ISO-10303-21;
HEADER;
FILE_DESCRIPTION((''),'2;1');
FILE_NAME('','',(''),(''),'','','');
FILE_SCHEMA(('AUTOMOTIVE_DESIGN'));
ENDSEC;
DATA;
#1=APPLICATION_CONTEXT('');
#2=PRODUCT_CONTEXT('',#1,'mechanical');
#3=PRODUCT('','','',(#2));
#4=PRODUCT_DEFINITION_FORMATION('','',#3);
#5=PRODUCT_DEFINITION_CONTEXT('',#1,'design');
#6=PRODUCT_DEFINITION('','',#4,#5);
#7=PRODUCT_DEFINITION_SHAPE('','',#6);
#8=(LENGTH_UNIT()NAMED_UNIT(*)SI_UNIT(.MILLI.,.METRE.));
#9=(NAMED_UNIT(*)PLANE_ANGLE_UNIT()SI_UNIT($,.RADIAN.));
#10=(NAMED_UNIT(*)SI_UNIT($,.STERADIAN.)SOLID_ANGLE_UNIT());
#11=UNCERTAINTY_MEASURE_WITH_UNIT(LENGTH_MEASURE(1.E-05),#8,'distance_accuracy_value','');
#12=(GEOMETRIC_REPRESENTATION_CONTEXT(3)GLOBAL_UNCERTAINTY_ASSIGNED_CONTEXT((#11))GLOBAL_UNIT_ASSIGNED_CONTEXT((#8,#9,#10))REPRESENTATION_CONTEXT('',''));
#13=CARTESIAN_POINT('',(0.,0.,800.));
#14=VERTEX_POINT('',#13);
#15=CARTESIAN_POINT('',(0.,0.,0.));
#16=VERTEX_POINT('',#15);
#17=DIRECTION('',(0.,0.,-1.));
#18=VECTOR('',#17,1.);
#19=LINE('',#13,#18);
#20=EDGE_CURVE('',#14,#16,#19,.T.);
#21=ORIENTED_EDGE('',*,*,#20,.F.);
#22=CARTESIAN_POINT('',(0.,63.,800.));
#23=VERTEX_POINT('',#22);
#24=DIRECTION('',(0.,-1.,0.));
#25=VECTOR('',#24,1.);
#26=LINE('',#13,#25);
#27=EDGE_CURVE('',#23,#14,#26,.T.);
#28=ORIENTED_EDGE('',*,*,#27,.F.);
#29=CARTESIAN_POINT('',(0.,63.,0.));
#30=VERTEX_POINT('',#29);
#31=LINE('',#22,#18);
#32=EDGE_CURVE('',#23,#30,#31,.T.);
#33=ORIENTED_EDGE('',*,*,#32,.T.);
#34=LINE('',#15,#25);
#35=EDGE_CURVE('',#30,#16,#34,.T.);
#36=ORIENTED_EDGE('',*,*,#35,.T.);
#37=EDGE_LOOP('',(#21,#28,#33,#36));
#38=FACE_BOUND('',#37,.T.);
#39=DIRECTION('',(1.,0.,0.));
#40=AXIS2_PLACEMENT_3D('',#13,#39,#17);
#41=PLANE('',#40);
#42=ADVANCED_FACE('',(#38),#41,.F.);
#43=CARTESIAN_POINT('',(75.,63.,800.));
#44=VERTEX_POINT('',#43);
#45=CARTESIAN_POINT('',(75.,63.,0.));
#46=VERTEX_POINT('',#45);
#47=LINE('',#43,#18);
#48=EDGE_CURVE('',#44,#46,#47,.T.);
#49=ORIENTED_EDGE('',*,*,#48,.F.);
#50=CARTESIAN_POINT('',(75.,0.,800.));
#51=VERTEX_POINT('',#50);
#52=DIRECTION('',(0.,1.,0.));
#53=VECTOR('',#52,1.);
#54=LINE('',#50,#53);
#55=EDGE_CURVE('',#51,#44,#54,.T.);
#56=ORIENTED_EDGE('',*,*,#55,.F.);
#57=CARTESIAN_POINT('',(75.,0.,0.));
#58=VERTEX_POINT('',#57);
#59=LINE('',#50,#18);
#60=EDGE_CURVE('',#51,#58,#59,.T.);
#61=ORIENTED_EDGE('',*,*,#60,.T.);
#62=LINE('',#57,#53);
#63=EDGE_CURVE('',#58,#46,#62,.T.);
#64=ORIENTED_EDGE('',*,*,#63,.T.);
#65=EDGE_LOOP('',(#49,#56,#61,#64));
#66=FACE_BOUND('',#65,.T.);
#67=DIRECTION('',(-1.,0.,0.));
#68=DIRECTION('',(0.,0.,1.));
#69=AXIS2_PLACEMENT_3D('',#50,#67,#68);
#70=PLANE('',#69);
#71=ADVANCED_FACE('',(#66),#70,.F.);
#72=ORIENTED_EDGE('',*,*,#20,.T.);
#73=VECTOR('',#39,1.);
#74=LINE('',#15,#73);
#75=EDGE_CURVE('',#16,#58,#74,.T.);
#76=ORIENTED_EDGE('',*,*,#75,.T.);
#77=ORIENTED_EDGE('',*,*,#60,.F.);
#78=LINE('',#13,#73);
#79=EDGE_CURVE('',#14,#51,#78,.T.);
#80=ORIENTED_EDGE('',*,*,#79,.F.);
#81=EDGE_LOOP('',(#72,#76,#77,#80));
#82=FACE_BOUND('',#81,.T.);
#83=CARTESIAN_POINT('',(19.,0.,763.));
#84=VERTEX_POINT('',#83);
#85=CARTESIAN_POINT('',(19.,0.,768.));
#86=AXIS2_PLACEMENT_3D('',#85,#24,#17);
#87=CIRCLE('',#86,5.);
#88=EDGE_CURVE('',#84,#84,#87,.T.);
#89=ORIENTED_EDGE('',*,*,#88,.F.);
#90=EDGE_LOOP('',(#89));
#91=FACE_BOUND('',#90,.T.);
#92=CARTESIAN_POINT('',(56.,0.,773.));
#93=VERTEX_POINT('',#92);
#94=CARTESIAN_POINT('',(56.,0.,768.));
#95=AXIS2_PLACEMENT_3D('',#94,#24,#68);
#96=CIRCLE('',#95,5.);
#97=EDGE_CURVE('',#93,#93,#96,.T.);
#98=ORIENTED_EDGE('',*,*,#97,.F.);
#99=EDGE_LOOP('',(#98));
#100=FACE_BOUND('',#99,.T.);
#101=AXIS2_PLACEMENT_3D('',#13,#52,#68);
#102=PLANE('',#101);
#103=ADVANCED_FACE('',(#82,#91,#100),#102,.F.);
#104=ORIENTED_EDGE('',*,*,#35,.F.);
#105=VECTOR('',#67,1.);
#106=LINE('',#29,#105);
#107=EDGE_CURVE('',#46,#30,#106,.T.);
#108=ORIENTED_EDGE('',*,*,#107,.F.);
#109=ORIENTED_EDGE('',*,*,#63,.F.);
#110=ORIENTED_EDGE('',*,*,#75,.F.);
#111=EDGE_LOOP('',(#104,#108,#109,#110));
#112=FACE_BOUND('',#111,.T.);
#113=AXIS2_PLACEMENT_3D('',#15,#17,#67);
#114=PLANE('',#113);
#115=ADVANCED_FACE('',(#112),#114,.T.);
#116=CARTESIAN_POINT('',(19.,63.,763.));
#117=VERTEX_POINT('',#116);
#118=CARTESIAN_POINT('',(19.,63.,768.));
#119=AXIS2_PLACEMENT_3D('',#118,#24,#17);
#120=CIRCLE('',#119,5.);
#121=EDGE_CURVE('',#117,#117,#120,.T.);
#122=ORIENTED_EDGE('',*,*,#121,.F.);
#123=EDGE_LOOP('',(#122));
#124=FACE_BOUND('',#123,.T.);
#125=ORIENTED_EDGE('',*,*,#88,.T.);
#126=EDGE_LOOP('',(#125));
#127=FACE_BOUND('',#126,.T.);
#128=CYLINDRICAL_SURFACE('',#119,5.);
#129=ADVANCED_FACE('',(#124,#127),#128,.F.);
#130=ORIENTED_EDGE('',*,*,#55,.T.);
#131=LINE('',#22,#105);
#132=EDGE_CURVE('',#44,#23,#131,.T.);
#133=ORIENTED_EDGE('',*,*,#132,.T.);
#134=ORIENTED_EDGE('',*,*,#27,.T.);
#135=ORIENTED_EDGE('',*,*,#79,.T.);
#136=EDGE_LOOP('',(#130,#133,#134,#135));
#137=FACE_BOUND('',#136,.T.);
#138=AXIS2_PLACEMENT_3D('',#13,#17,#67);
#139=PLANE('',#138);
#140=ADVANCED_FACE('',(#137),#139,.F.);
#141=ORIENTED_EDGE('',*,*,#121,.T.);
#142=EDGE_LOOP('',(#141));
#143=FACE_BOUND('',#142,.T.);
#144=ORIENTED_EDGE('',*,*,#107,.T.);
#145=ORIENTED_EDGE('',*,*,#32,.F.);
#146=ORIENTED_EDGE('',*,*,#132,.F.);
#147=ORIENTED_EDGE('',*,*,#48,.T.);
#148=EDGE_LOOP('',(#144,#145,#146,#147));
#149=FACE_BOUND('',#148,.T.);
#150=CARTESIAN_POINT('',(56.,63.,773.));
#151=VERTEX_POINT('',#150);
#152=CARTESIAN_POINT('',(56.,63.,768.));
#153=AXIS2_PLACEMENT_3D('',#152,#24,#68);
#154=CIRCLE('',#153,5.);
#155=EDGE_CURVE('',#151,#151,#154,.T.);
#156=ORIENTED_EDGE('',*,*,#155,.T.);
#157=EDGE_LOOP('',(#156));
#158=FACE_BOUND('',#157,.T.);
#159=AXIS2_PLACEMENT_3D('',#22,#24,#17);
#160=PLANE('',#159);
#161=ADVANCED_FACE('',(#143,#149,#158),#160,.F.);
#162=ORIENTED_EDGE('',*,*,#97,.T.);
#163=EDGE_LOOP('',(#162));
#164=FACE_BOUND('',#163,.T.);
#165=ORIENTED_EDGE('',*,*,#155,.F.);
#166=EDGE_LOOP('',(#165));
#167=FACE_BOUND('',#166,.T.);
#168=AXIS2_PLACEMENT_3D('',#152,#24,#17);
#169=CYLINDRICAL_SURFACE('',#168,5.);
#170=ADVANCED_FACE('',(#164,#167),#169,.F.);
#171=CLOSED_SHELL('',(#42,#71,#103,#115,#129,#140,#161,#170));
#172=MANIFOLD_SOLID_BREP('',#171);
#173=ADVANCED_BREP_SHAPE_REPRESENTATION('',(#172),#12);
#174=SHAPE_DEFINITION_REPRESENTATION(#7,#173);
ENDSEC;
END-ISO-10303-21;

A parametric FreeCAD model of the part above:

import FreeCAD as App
import Part
import Sketcher

V = App.Vector
Q = App.Units.Quantity

doc = App.newDocument("Part")
params = doc.addObject("Spreadsheet::Sheet", "Params")
for row, (alias, value) in enumerate([
    ("sketch1_width", "75 mm"),
    ("sketch1_height", "63 mm"),
    ("pad1_length", "800 mm"),
    ("sketch2_diameter", "10 mm"),
], start=1):
    params.set(f"A{row}", alias)
    params.set(f"B{row}", "=" + value)
    params.setAlias(f"B{row}", alias)

body = doc.addObject("PartDesign::Body", "Body")

# Sketch on XY plane
sketch1 = doc.addObject("Sketcher::SketchObject", "Sketch")
body.addObject(sketch1)
sketch1.AttachmentSupport = (doc.XY_Plane, [""])
sketch1.MapMode = "FlatFace"
sketch1.addGeometry([
    Part.LineSegment(V(0, 63, 0), V(0, 0, 0)),
    Part.LineSegment(V(0, 0, 0), V(75, 0, 0)),
    Part.LineSegment(V(75, 0, 0), V(75, 63, 0)),
    Part.LineSegment(V(75, 63, 0), V(0, 63, 0)),
], False)
sketch1.addConstraint([
    Sketcher.Constraint("Coincident", 0, 2, 1, 1),
    Sketcher.Constraint("Coincident", 1, 2, 2, 1),
    Sketcher.Constraint("Coincident", 2, 2, 3, 1),
    Sketcher.Constraint("Coincident", 3, 2, 0, 1),
    Sketcher.Constraint("Vertical", 0),
    Sketcher.Constraint("Horizontal", 1),
    Sketcher.Constraint("Vertical", 2),
    Sketcher.Constraint("Horizontal", 3),
    Sketcher.Constraint("Coincident", 0, 2, -1, 1),
    Sketcher.Constraint("DistanceX", 1, 1, 1, 2, Q("75 mm")),
    Sketcher.Constraint("DistanceY", 0, 2, 0, 1, Q("63 mm")),
])
sketch1.setExpression("Constraints[9]", "Params.sketch1_width")
sketch1.setExpression("Constraints[10]", "Params.sketch1_height")
pad1 = doc.addObject("PartDesign::Pad", "Pad")
body.addObject(pad1)
pad1.Profile = sketch1
pad1.setExpression("Length", "Params.pad1_length")

# Sketch on XZ plane
sketch2 = doc.addObject("Sketcher::SketchObject", "Sketch001")
body.addObject(sketch2)
sketch2.AttachmentSupport = (doc.XZ_Plane, [""])
sketch2.MapMode = "FlatFace"
sketch2.addGeometry([
    Part.Circle(V(19, 768, 0), V(0, 0, 1), 5),
    Part.Circle(V(56, 768, 0), V(0, 0, 1), 5),
], False)
sketch2.addConstraint([
    Sketcher.Constraint("Equal", 0, 1),
    Sketcher.Constraint("Horizontal", 0, 3, 1, 3),
    Sketcher.Constraint("Diameter", 0, Q("10 mm")),
    Sketcher.Constraint("DistanceX", -1, 1, 0, 3, Q("19 mm")),
    Sketcher.Constraint("DistanceY", -1, 1, 0, 3, Q("768 mm")),
    Sketcher.Constraint("DistanceX", -1, 1, 1, 3, Q("56 mm")),
])
sketch2.setExpression("Constraints[2]", "Params.sketch2_diameter")
pocket1 = doc.addObject("PartDesign::Pocket", "Pocket")
body.addObject(pocket1)
pocket1.Profile = sketch2
pocket1.Type = "ThroughAll"

doc.recompute()
